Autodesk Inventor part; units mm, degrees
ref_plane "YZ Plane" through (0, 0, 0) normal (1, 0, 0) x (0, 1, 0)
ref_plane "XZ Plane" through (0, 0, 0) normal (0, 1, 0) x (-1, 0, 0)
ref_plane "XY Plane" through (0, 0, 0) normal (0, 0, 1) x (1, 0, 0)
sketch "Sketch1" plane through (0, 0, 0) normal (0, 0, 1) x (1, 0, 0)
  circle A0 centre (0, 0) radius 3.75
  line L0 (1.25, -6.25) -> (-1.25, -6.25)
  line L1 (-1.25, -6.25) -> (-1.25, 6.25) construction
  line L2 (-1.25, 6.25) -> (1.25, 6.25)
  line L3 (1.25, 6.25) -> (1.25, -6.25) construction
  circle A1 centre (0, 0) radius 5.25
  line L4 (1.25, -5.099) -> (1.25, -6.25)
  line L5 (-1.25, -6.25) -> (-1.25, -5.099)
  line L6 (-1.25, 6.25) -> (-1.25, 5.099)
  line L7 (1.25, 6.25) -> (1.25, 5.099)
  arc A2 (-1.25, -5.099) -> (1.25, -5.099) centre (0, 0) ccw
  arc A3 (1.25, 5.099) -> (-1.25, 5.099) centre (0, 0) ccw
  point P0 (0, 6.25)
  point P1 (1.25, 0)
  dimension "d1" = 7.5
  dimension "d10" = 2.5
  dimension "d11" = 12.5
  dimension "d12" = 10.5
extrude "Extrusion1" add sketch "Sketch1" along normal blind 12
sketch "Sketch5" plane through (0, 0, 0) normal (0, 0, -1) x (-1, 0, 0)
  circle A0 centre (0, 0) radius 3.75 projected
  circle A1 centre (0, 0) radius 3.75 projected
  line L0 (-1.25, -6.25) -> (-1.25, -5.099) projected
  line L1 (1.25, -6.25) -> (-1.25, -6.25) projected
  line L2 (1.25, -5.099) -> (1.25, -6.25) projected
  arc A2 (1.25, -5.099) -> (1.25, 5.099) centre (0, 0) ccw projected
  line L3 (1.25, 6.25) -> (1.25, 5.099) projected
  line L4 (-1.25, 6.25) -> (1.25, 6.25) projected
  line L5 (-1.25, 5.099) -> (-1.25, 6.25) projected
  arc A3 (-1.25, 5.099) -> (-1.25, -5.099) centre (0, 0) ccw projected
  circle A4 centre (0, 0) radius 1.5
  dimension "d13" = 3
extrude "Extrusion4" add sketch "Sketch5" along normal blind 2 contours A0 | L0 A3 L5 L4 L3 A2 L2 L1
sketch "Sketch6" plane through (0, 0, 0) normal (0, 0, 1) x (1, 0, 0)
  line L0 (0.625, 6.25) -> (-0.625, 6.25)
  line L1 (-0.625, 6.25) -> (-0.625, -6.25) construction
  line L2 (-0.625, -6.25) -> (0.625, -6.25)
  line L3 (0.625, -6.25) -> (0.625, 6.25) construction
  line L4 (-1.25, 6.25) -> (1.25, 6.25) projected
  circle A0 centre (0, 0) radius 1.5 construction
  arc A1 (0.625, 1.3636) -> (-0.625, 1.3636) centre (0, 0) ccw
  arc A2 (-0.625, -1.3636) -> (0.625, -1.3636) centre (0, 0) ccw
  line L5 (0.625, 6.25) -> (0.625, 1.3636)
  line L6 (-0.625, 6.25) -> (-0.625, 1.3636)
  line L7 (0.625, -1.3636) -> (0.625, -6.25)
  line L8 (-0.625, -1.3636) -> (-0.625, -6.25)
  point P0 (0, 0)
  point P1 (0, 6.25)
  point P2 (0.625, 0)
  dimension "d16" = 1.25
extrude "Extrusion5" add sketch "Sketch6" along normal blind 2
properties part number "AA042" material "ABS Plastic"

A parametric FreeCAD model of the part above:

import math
import FreeCAD as App
import Part
import Sketcher

V = App.Vector
Q = App.Units.Quantity

doc = App.newDocument("Part")
body = doc.addObject("PartDesign::Body", "Body")

# Sketch on XY plane
sketch1 = body.newObject("Sketcher::SketchObject", "Sketch")
sketch1.AttachmentSupport = (doc.getObject("XY_Plane"), [""])
sketch1.MapMode = "FlatFace"
sketch1.addGeometry(Part.LineSegment(V(-1.2, -6.2, 0), V(1.2, -6.2, 0)), False)
sketch1.addGeometry(Part.LineSegment(V(1.2, -6.2, 0), V(1.2, -5.1, 0)), False)
sketch1.addGeometry(Part.ArcOfCircle(Part.Circle(V(0, 0, 0), V(0, 0, 1), 5.2), math.radians(-76), math.radians(76)), False)
sketch1.addGeometry(Part.LineSegment(V(1.2, 5.1, 0), V(1.2, 6.2, 0)), False)
sketch1.addGeometry(Part.LineSegment(V(1.2, 6.2, 0), V(-1.2, 6.2, 0)), False)
sketch1.addGeometry(Part.LineSegment(V(-1.2, 6.2, 0), V(-1.2, 5.1, 0)), False)
sketch1.addGeometry(Part.ArcOfCircle(Part.Circle(V(0, 0, 0), V(0, 0, 1), 5.2), math.radians(104), math.radians(256)), False)
sketch1.addGeometry(Part.LineSegment(V(-1.2, -5.1, 0), V(-1.2, -6.2, 0)), False)
sketch1.addGeometry(Part.Circle(V(0, 0, 0), V(0, 0, 1), 3.8), False)
sketch1.addConstraint(Sketcher.Constraint("Coincident", 0, 2, 1, 1))
sketch1.addConstraint(Sketcher.Constraint("Coincident", 1, 2, 2, 1))
sketch1.addConstraint(Sketcher.Constraint("Coincident", 2, 2, 3, 1))
sketch1.addConstraint(Sketcher.Constraint("Coincident", 3, 2, 4, 1))
sketch1.addConstraint(Sketcher.Constraint("Coincident", 4, 2, 5, 1))
sketch1.addConstraint(Sketcher.Constraint("Coincident", 5, 2, 6, 1))
sketch1.addConstraint(Sketcher.Constraint("Coincident", 6, 2, 7, 1))
sketch1.addConstraint(Sketcher.Constraint("Coincident", 7, 2, 0, 1))
sketch1.addConstraint(Sketcher.Constraint("Horizontal", 0))
sketch1.addConstraint(Sketcher.Constraint("Vertical", 1))
sketch1.addConstraint(Sketcher.Constraint("Vertical", 3))
sketch1.addConstraint(Sketcher.Constraint("Horizontal", 4))
sketch1.addConstraint(Sketcher.Constraint("Vertical", 5))
sketch1.addConstraint(Sketcher.Constraint("Vertical", 7))
sketch1.addConstraint(Sketcher.Constraint("Coincident", 2, 3, -1, 1))
sketch1.addConstraint(Sketcher.Constraint("Coincident", 6, 3, -1, 1))
sketch1.addConstraint(Sketcher.Constraint("Coincident", 8, 3, -1, 1))
sketch1.addConstraint(Sketcher.Constraint("Equal", 2, 6))
sketch1.addConstraint(Sketcher.Constraint("Symmetric", 0, 2, 4, 2, -1, 1))
sketch1.addConstraint(Sketcher.Constraint("Horizontal", 2, 2, 5, 2))
sketch1.addConstraint(Sketcher.Constraint("Horizontal", 1, 2, 6, 2))
sketch1.addConstraint(Sketcher.Constraint("Diameter", 8, Q("7.5 mm")))
sketch1.addConstraint(Sketcher.Constraint("Radius", 2, Q("5.25 mm")))
sketch1.addConstraint(Sketcher.Constraint("DistanceX", 0, 1, 0, 2, Q("2.5 mm")))
sketch1.addConstraint(Sketcher.Constraint("DistanceY", 1, 1, 1, 2, Q("1.151 mm")))
pad1 = body.newObject("PartDesign::Pad", "Pad")
pad1.Profile = sketch1
pad1.Length = 12

# Sketch on XY plane
sketch2 = body.newObject("Sketcher::SketchObject", "Sketch001")
sketch2.AttachmentSupport = (doc.getObject("XY_Plane"), [""])
sketch2.MapMode = "FlatFace"
sketch2.addGeometry(Part.LineSegment(V(1.2, -5.1, 0), V(1.2, -6.2, 0)), False)
sketch2.addGeometry(Part.LineSegment(V(1.2, -6.2, 0), V(-1.2, -6.2, 0)), False)
sketch2.addGeometry(Part.LineSegment(V(-1.2, -6.2, 0), V(-1.2, -5.1, 0)), False)
sketch2.addGeometry(Part.ArcOfCircle(Part.Circle(V(0, 0, 0), V(0, 0, 1), 5.2), math.radians(104), math.radians(256)), False)
sketch2.addGeometry(Part.LineSegment(V(-1.2, 5.1, 0), V(-1.2, 6.2, 0)), False)
sketch2.addGeometry(Part.LineSegment(V(-1.2, 6.2, 0), V(1.2, 6.2, 0)), False)
sketch2.addGeometry(Part.LineSegment(V(1.2, 6.2, 0), V(1.2, 5.1, 0)), False)
sketch2.addGeometry(Part.ArcOfCircle(Part.Circle(V(0, 0, 0), V(0, 0, 1), 5.2), math.radians(-76), math.radians(76)), False)
sketch2.addGeometry(Part.Circle(V(0, 0, 0), V(0, 0, 1), 1.5), False)
sketch2.addConstraint(Sketcher.Constraint("Coincident", 0, 2, 1, 1))
sketch2.addConstraint(Sketcher.Constraint("Coincident", 1, 2, 2, 1))
sketch2.addConstraint(Sketcher.Constraint("Coincident", 2, 2, 3, 2))
sketch2.addConstraint(Sketcher.Constraint("Coincident", 3, 1, 4, 1))
sketch2.addConstraint(Sketcher.Constraint("Coincident", 4, 2, 5, 1))
sketch2.addConstraint(Sketcher.Constraint("Coincident", 5, 2, 6, 1))
sketch2.addConstraint(Sketcher.Constraint("Coincident", 6, 2, 7, 2))
sketch2.addConstraint(Sketcher.Constraint("Coincident", 7, 1, 0, 1))
sketch2.addConstraint(Sketcher.Constraint("Vertical", 0))
sketch2.addConstraint(Sketcher.Constraint("Horizontal", 1))
sketch2.addConstraint(Sketcher.Constraint("Vertical", 2))
sketch2.addConstraint(Sketcher.Constraint("Vertical", 4))
sketch2.addConstraint(Sketcher.Constraint("Horizontal", 5))
sketch2.addConstraint(Sketcher.Constraint("Vertical", 6))
sketch2.addConstraint(Sketcher.Constraint("Coincident", 3, 3, -1, 1))
sketch2.addConstraint(Sketcher.Constraint("Coincident", 7, 3, -1, 1))
sketch2.addConstraint(Sketcher.Constraint("Coincident", 8, 3, -1, 1))
sketch2.addConstraint(Sketcher.Constraint("Equal", 3, 7))
sketch2.addConstraint(Sketcher.Constraint("Symmetric", 0, 2, 4, 2, -1, 1))
sketch2.addConstraint(Sketcher.Constraint("Horizontal", 3, 1, 6, 2))
sketch2.addConstraint(Sketcher.Constraint("Horizontal", 2, 2, 7, 1))
sketch2.addConstraint(Sketcher.Constraint("Diameter", 8, Q("3 mm")))
sketch2.addConstraint(Sketcher.Constraint("Radius", 3, Q("5.25 mm")))
sketch2.addConstraint(Sketcher.Constraint("DistanceX", 1, 2, 1, 1, Q("2.5 mm")))
sketch2.addConstraint(Sketcher.Constraint("DistanceY", 0, 2, 0, 1, Q("1.151 mm")))
pad2 = body.newObject("PartDesign::Pad", "Pad001")
pad2.Profile = sketch2
pad2.Length = 2
pad2.Reversed = True

# Sketch on XY plane
sketch3 = body.newObject("Sketcher::SketchObject", "Sketch002")
sketch3.AttachmentSupport = (doc.getObject("XY_Plane"), [""])
sketch3.MapMode = "FlatFace"
sketch3.addGeometry(Part.LineSegment(V(0.6, 1.4, 0), V(0.6, 6.2, 0)), False)
sketch3.addGeometry(Part.LineSegment(V(0.6, 6.2, 0), V(-0.6, 6.2, 0)), False)
sketch3.addGeometry(Part.LineSegment(V(-0.6, 6.2, 0), V(-0.6, 1.4, 0)), False)
sketch3.addGeometry(Part.ArcOfCircle(Part.Circle(V(0, 0, 0), V(0, 0, 1), 1.5), math.radians(65), math.radians(115)), False)
sketch3.addGeometry(Part.LineSegment(V(-0.6, -1.4, 0), V(-0.6, -6.2, 0)), False)
sketch3.addGeometry(Part.LineSegment(V(-0.6, -6.2, 0), V(0.6, -6.2, 0)), False)
sketch3.addGeometry(Part.LineSegment(V(0.6, -6.2, 0), V(0.6, -1.4, 0)), False)
sketch3.addGeometry(Part.ArcOfCircle(Part.Circle(V(0, 0, 0), V(0, 0, 1), 1.5), math.radians(-115), math.radians(-65)), False)
sketch3.addConstraint(Sketcher.Constraint("Coincident", 0, 2, 1, 1))
sketch3.addConstraint(Sketcher.Constraint("Coincident", 1, 2, 2, 1))
sketch3.addConstraint(Sketcher.Constraint("Coincident", 2, 2, 3, 2))
sketch3.addConstraint(Sketcher.Constraint("Coincident", 3, 1, 0, 1))
sketch3.addConstraint(Sketcher.Constraint("Coincident", 4, 2, 5, 1))
sketch3.addConstraint(Sketcher.Constraint("Coincident", 5, 2, 6, 1))
sketch3.addConstraint(Sketcher.Constraint("Coincident", 6, 2, 7, 2))
sketch3.addConstraint(Sketcher.Constraint("Coincident", 7, 1, 4, 1))
sketch3.addConstraint(Sketcher.Constraint("Vertical", 0))
sketch3.addConstraint(Sketcher.Constraint("Horizontal", 1))
sketch3.addConstraint(Sketcher.Constraint("Vertical", 2))
sketch3.addConstraint(Sketcher.Constraint("Vertical", 4))
sketch3.addConstraint(Sketcher.Constraint("Horizontal", 5))
sketch3.addConstraint(Sketcher.Constraint("Vertical", 6))
sketch3.addConstraint(Sketcher.Constraint("Coincident", 3, 3, -1, 1))
sketch3.addConstraint(Sketcher.Constraint("Coincident", 7, 3, -1, 1))
sketch3.addConstraint(Sketcher.Constraint("Equal", 3, 7))
sketch3.addConstraint(Sketcher.Constraint("Symmetric", 0, 2, 4, 2, -1, 1))
sketch3.addConstraint(Sketcher.Constraint("Horizontal", 2, 2, 3, 1))
sketch3.addConstraint(Sketcher.Constraint("Horizontal", 6, 2, 7, 1))
sketch3.addConstraint(Sketcher.Constraint("DistanceX", 1, 2, 1, 1, Q("1.25 mm")))
sketch3.addConstraint(Sketcher.Constraint("Radius", 3, Q("1.5 mm")))
sketch3.addConstraint(Sketcher.Constraint("DistanceY", 4, 2, 1, 2, Q("12.5 mm")))
pad3 = body.newObject("PartDesign::Pad", "Pad002")
pad3.Profile = sketch3
pad3.Length = 2

doc.recompute()
